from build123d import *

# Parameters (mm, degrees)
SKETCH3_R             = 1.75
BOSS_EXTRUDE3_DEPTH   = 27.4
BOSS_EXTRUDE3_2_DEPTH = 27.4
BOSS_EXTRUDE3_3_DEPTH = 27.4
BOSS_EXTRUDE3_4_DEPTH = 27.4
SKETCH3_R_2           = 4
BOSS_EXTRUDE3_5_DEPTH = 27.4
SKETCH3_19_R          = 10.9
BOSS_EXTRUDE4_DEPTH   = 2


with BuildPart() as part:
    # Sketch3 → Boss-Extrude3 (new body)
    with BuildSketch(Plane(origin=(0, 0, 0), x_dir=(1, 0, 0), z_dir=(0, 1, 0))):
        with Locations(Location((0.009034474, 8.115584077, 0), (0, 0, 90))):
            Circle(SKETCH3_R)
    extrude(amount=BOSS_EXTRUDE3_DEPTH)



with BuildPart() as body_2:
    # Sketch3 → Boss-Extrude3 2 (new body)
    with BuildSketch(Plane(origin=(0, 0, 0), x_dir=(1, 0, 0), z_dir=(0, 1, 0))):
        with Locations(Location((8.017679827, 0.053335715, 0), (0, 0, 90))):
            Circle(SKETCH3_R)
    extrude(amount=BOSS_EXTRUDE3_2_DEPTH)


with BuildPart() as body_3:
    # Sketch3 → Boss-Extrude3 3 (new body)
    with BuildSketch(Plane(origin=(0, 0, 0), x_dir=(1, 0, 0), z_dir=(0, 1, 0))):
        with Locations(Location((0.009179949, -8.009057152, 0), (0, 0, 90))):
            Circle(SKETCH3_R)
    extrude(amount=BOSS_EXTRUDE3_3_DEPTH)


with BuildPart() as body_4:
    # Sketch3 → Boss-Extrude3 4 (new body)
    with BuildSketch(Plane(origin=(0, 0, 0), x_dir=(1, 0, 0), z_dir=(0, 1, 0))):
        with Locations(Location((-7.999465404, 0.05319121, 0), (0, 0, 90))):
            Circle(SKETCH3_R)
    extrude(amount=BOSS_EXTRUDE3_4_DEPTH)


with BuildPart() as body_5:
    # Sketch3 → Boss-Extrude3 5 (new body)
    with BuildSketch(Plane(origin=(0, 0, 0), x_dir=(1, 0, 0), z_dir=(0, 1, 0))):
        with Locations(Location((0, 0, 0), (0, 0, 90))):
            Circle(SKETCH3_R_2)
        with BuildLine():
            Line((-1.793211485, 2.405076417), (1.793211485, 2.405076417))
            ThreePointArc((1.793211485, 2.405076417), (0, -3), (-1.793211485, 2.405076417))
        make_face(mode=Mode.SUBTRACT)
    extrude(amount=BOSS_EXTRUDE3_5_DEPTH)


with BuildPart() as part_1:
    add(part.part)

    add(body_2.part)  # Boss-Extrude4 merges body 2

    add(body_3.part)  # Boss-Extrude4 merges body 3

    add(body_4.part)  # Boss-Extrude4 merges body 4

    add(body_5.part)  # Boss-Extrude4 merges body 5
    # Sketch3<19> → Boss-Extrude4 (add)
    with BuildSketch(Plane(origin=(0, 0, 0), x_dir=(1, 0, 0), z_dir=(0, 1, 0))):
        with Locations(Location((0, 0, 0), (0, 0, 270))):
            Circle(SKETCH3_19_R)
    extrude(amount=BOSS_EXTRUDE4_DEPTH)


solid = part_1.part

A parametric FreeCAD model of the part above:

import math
import FreeCAD as App
import Part
import Sketcher
from FreeCAD import Vector

doc = App.newDocument("Part")
body = doc.addObject("PartDesign::Body", "Body")

sketch1 = body.newObject("Sketcher::SketchObject", "Sketch")
sketch1.AttachmentSupport = (doc.getObject("XZ_Plane"), [""])
sketch1.MapMode = "FlatFace"
sketch1.addGeometry(Part.Circle(Vector(0, -8.1, 0), Vector(0, 0, 1), 1.8), False)
sketch1.addConstraint(Sketcher.Constraint("Diameter", 0, 3.5))
sketch1.addConstraint(Sketcher.Constraint("DistanceX", -1, 1, 0, 3, 0.009034))
sketch1.addConstraint(Sketcher.Constraint("DistanceY", 0, 3, -1, 1, 8.115584))
pad1 = body.newObject("PartDesign::Pad", "Pad")
pad1.Profile = sketch1
pad1.Length = 27.4
pad1.Reversed = True
body2 = doc.addObject("PartDesign::Body", "Body001")

sketch2 = body2.newObject("Sketcher::SketchObject", "Sketch001")
sketch2.AttachmentSupport = (doc.getObject("XZ_Plane001"), [""])
sketch2.MapMode = "FlatFace"
sketch2.addGeometry(Part.Circle(Vector(8, -0.1, 0), Vector(0, 0, 1), 1.8), False)
sketch2.addConstraint(Sketcher.Constraint("Diameter", 0, 3.5))
sketch2.addConstraint(Sketcher.Constraint("DistanceX", -1, 1, 0, 3, 8.01768))
sketch2.addConstraint(Sketcher.Constraint("DistanceY", 0, 3, -1, 1, 0.053336))
pad2 = body2.newObject("PartDesign::Pad", "Pad001")
pad2.Profile = sketch2
pad2.Length = 27.4
pad2.Reversed = True
body3 = doc.addObject("PartDesign::Body", "Body002")

sketch3 = body3.newObject("Sketcher::SketchObject", "Sketch002")
sketch3.AttachmentSupport = (doc.getObject("XZ_Plane002"), [""])
sketch3.MapMode = "FlatFace"
sketch3.addGeometry(Part.Circle(Vector(0, 8, 0), Vector(0, 0, 1), 1.8), False)
sketch3.addConstraint(Sketcher.Constraint("Diameter", 0, 3.5))
sketch3.addConstraint(Sketcher.Constraint("DistanceX", -1, 1, 0, 3, 0.00918))
sketch3.addConstraint(Sketcher.Constraint("DistanceY", -1, 1, 0, 3, 8.009057))
pad3 = body3.newObject("PartDesign::Pad", "Pad002")
pad3.Profile = sketch3
pad3.Length = 27.4
pad3.Reversed = True
body4 = doc.addObject("PartDesign::Body", "Body003")

sketch4 = body4.newObject("Sketcher::SketchObject", "Sketch003")
sketch4.AttachmentSupport = (doc.getObject("XZ_Plane003"), [""])
sketch4.MapMode = "FlatFace"
sketch4.addGeometry(Part.Circle(Vector(-8, -0.1, 0), Vector(0, 0, 1), 1.8), False)
sketch4.addConstraint(Sketcher.Constraint("Diameter", 0, 3.5))
sketch4.addConstraint(Sketcher.Constraint("DistanceY", 0, 3, -1, 1, 0.053191))
sketch4.addConstraint(Sketcher.Constraint("DistanceX", 0, 3, -1, 1, 7.999465))
pad4 = body4.newObject("PartDesign::Pad", "Pad003")
pad4.Profile = sketch4
pad4.Length = 27.4
pad4.Reversed = True
body5 = doc.addObject("PartDesign::Body", "Body004")

sketch5 = body5.newObject("Sketcher::SketchObject", "Sketch004")
sketch5.AttachmentSupport = (doc.getObject("XZ_Plane004"), [""])
sketch5.MapMode = "FlatFace"
sketch5.addGeometry(Part.Circle(Vector(0, 0, 0), Vector(0, 0, 1), 4), False)
sketch5.addGeometry(Part.ArcOfCircle(Part.Circle(Vector(0, 0, 0), Vector(0, 0, 1), 3), math.radians(-53), math.radians(233)), False)
sketch5.addGeometry(Part.LineSegment(Vector(-1.8, -2.4, 0), Vector(1.8, -2.4, 0)), False)
sketch5.addConstraint(Sketcher.Constraint("Coincident", 1, 1, 2, 2))
sketch5.addConstraint(Sketcher.Constraint("Coincident", 2, 1, 1, 2))
sketch5.addConstraint(Sketcher.Constraint("Horizontal", 2))
sketch5.addConstraint(Sketcher.Constraint("Coincident", 0, 3, -1, 1))
sketch5.addConstraint(Sketcher.Constraint("Coincident", 1, 3, -1, 1))
sketch5.addConstraint(Sketcher.Constraint("Diameter", 0, 8.0))
sketch5.addConstraint(Sketcher.Constraint("Radius", 1, 3.0))
sketch5.addConstraint(Sketcher.Constraint("DistanceX", 2, 1, 2, 2, 3.586423))
pad5 = body5.newObject("PartDesign::Pad", "Pad004")
pad5.Profile = sketch5
pad5.Length = 27.4
pad5.Reversed = True
body.AllowCompound = True
doc.recompute()

boolean = body.newObject("PartDesign::Boolean", "Boolean")
boolean.Type = "Fuse"
boolean.addObjects([body2])
doc.recompute()

boolean2 = body.newObject("PartDesign::Boolean", "Boolean001")
boolean2.Type = "Fuse"
boolean2.addObjects([body3])
doc.recompute()

boolean3 = body.newObject("PartDesign::Boolean", "Boolean002")
boolean3.Type = "Fuse"
boolean3.addObjects([body4])
doc.recompute()

boolean4 = body.newObject("PartDesign::Boolean", "Boolean003")
boolean4.Type = "Fuse"
boolean4.addObjects([body5])

sketch6 = body.newObject("Sketcher::SketchObject", "Sketch005")
sketch6.AttachmentSupport = (doc.getObject("XZ_Plane"), [""])
sketch6.MapMode = "FlatFace"
sketch6.addGeometry(Part.Circle(Vector(0, 0, 0), Vector(0, 0, 1), 11), False)
sketch6.addConstraint(Sketcher.Constraint("Coincident", 0, 3, -1, 1))
sketch6.addConstraint(Sketcher.Constraint("Diameter", 0, 21.8))
pad6 = body.newObject("PartDesign::Pad", "Pad005")
pad6.Profile = sketch6
pad6.Length = 2
pad6.Reversed = True

doc.recompute()
